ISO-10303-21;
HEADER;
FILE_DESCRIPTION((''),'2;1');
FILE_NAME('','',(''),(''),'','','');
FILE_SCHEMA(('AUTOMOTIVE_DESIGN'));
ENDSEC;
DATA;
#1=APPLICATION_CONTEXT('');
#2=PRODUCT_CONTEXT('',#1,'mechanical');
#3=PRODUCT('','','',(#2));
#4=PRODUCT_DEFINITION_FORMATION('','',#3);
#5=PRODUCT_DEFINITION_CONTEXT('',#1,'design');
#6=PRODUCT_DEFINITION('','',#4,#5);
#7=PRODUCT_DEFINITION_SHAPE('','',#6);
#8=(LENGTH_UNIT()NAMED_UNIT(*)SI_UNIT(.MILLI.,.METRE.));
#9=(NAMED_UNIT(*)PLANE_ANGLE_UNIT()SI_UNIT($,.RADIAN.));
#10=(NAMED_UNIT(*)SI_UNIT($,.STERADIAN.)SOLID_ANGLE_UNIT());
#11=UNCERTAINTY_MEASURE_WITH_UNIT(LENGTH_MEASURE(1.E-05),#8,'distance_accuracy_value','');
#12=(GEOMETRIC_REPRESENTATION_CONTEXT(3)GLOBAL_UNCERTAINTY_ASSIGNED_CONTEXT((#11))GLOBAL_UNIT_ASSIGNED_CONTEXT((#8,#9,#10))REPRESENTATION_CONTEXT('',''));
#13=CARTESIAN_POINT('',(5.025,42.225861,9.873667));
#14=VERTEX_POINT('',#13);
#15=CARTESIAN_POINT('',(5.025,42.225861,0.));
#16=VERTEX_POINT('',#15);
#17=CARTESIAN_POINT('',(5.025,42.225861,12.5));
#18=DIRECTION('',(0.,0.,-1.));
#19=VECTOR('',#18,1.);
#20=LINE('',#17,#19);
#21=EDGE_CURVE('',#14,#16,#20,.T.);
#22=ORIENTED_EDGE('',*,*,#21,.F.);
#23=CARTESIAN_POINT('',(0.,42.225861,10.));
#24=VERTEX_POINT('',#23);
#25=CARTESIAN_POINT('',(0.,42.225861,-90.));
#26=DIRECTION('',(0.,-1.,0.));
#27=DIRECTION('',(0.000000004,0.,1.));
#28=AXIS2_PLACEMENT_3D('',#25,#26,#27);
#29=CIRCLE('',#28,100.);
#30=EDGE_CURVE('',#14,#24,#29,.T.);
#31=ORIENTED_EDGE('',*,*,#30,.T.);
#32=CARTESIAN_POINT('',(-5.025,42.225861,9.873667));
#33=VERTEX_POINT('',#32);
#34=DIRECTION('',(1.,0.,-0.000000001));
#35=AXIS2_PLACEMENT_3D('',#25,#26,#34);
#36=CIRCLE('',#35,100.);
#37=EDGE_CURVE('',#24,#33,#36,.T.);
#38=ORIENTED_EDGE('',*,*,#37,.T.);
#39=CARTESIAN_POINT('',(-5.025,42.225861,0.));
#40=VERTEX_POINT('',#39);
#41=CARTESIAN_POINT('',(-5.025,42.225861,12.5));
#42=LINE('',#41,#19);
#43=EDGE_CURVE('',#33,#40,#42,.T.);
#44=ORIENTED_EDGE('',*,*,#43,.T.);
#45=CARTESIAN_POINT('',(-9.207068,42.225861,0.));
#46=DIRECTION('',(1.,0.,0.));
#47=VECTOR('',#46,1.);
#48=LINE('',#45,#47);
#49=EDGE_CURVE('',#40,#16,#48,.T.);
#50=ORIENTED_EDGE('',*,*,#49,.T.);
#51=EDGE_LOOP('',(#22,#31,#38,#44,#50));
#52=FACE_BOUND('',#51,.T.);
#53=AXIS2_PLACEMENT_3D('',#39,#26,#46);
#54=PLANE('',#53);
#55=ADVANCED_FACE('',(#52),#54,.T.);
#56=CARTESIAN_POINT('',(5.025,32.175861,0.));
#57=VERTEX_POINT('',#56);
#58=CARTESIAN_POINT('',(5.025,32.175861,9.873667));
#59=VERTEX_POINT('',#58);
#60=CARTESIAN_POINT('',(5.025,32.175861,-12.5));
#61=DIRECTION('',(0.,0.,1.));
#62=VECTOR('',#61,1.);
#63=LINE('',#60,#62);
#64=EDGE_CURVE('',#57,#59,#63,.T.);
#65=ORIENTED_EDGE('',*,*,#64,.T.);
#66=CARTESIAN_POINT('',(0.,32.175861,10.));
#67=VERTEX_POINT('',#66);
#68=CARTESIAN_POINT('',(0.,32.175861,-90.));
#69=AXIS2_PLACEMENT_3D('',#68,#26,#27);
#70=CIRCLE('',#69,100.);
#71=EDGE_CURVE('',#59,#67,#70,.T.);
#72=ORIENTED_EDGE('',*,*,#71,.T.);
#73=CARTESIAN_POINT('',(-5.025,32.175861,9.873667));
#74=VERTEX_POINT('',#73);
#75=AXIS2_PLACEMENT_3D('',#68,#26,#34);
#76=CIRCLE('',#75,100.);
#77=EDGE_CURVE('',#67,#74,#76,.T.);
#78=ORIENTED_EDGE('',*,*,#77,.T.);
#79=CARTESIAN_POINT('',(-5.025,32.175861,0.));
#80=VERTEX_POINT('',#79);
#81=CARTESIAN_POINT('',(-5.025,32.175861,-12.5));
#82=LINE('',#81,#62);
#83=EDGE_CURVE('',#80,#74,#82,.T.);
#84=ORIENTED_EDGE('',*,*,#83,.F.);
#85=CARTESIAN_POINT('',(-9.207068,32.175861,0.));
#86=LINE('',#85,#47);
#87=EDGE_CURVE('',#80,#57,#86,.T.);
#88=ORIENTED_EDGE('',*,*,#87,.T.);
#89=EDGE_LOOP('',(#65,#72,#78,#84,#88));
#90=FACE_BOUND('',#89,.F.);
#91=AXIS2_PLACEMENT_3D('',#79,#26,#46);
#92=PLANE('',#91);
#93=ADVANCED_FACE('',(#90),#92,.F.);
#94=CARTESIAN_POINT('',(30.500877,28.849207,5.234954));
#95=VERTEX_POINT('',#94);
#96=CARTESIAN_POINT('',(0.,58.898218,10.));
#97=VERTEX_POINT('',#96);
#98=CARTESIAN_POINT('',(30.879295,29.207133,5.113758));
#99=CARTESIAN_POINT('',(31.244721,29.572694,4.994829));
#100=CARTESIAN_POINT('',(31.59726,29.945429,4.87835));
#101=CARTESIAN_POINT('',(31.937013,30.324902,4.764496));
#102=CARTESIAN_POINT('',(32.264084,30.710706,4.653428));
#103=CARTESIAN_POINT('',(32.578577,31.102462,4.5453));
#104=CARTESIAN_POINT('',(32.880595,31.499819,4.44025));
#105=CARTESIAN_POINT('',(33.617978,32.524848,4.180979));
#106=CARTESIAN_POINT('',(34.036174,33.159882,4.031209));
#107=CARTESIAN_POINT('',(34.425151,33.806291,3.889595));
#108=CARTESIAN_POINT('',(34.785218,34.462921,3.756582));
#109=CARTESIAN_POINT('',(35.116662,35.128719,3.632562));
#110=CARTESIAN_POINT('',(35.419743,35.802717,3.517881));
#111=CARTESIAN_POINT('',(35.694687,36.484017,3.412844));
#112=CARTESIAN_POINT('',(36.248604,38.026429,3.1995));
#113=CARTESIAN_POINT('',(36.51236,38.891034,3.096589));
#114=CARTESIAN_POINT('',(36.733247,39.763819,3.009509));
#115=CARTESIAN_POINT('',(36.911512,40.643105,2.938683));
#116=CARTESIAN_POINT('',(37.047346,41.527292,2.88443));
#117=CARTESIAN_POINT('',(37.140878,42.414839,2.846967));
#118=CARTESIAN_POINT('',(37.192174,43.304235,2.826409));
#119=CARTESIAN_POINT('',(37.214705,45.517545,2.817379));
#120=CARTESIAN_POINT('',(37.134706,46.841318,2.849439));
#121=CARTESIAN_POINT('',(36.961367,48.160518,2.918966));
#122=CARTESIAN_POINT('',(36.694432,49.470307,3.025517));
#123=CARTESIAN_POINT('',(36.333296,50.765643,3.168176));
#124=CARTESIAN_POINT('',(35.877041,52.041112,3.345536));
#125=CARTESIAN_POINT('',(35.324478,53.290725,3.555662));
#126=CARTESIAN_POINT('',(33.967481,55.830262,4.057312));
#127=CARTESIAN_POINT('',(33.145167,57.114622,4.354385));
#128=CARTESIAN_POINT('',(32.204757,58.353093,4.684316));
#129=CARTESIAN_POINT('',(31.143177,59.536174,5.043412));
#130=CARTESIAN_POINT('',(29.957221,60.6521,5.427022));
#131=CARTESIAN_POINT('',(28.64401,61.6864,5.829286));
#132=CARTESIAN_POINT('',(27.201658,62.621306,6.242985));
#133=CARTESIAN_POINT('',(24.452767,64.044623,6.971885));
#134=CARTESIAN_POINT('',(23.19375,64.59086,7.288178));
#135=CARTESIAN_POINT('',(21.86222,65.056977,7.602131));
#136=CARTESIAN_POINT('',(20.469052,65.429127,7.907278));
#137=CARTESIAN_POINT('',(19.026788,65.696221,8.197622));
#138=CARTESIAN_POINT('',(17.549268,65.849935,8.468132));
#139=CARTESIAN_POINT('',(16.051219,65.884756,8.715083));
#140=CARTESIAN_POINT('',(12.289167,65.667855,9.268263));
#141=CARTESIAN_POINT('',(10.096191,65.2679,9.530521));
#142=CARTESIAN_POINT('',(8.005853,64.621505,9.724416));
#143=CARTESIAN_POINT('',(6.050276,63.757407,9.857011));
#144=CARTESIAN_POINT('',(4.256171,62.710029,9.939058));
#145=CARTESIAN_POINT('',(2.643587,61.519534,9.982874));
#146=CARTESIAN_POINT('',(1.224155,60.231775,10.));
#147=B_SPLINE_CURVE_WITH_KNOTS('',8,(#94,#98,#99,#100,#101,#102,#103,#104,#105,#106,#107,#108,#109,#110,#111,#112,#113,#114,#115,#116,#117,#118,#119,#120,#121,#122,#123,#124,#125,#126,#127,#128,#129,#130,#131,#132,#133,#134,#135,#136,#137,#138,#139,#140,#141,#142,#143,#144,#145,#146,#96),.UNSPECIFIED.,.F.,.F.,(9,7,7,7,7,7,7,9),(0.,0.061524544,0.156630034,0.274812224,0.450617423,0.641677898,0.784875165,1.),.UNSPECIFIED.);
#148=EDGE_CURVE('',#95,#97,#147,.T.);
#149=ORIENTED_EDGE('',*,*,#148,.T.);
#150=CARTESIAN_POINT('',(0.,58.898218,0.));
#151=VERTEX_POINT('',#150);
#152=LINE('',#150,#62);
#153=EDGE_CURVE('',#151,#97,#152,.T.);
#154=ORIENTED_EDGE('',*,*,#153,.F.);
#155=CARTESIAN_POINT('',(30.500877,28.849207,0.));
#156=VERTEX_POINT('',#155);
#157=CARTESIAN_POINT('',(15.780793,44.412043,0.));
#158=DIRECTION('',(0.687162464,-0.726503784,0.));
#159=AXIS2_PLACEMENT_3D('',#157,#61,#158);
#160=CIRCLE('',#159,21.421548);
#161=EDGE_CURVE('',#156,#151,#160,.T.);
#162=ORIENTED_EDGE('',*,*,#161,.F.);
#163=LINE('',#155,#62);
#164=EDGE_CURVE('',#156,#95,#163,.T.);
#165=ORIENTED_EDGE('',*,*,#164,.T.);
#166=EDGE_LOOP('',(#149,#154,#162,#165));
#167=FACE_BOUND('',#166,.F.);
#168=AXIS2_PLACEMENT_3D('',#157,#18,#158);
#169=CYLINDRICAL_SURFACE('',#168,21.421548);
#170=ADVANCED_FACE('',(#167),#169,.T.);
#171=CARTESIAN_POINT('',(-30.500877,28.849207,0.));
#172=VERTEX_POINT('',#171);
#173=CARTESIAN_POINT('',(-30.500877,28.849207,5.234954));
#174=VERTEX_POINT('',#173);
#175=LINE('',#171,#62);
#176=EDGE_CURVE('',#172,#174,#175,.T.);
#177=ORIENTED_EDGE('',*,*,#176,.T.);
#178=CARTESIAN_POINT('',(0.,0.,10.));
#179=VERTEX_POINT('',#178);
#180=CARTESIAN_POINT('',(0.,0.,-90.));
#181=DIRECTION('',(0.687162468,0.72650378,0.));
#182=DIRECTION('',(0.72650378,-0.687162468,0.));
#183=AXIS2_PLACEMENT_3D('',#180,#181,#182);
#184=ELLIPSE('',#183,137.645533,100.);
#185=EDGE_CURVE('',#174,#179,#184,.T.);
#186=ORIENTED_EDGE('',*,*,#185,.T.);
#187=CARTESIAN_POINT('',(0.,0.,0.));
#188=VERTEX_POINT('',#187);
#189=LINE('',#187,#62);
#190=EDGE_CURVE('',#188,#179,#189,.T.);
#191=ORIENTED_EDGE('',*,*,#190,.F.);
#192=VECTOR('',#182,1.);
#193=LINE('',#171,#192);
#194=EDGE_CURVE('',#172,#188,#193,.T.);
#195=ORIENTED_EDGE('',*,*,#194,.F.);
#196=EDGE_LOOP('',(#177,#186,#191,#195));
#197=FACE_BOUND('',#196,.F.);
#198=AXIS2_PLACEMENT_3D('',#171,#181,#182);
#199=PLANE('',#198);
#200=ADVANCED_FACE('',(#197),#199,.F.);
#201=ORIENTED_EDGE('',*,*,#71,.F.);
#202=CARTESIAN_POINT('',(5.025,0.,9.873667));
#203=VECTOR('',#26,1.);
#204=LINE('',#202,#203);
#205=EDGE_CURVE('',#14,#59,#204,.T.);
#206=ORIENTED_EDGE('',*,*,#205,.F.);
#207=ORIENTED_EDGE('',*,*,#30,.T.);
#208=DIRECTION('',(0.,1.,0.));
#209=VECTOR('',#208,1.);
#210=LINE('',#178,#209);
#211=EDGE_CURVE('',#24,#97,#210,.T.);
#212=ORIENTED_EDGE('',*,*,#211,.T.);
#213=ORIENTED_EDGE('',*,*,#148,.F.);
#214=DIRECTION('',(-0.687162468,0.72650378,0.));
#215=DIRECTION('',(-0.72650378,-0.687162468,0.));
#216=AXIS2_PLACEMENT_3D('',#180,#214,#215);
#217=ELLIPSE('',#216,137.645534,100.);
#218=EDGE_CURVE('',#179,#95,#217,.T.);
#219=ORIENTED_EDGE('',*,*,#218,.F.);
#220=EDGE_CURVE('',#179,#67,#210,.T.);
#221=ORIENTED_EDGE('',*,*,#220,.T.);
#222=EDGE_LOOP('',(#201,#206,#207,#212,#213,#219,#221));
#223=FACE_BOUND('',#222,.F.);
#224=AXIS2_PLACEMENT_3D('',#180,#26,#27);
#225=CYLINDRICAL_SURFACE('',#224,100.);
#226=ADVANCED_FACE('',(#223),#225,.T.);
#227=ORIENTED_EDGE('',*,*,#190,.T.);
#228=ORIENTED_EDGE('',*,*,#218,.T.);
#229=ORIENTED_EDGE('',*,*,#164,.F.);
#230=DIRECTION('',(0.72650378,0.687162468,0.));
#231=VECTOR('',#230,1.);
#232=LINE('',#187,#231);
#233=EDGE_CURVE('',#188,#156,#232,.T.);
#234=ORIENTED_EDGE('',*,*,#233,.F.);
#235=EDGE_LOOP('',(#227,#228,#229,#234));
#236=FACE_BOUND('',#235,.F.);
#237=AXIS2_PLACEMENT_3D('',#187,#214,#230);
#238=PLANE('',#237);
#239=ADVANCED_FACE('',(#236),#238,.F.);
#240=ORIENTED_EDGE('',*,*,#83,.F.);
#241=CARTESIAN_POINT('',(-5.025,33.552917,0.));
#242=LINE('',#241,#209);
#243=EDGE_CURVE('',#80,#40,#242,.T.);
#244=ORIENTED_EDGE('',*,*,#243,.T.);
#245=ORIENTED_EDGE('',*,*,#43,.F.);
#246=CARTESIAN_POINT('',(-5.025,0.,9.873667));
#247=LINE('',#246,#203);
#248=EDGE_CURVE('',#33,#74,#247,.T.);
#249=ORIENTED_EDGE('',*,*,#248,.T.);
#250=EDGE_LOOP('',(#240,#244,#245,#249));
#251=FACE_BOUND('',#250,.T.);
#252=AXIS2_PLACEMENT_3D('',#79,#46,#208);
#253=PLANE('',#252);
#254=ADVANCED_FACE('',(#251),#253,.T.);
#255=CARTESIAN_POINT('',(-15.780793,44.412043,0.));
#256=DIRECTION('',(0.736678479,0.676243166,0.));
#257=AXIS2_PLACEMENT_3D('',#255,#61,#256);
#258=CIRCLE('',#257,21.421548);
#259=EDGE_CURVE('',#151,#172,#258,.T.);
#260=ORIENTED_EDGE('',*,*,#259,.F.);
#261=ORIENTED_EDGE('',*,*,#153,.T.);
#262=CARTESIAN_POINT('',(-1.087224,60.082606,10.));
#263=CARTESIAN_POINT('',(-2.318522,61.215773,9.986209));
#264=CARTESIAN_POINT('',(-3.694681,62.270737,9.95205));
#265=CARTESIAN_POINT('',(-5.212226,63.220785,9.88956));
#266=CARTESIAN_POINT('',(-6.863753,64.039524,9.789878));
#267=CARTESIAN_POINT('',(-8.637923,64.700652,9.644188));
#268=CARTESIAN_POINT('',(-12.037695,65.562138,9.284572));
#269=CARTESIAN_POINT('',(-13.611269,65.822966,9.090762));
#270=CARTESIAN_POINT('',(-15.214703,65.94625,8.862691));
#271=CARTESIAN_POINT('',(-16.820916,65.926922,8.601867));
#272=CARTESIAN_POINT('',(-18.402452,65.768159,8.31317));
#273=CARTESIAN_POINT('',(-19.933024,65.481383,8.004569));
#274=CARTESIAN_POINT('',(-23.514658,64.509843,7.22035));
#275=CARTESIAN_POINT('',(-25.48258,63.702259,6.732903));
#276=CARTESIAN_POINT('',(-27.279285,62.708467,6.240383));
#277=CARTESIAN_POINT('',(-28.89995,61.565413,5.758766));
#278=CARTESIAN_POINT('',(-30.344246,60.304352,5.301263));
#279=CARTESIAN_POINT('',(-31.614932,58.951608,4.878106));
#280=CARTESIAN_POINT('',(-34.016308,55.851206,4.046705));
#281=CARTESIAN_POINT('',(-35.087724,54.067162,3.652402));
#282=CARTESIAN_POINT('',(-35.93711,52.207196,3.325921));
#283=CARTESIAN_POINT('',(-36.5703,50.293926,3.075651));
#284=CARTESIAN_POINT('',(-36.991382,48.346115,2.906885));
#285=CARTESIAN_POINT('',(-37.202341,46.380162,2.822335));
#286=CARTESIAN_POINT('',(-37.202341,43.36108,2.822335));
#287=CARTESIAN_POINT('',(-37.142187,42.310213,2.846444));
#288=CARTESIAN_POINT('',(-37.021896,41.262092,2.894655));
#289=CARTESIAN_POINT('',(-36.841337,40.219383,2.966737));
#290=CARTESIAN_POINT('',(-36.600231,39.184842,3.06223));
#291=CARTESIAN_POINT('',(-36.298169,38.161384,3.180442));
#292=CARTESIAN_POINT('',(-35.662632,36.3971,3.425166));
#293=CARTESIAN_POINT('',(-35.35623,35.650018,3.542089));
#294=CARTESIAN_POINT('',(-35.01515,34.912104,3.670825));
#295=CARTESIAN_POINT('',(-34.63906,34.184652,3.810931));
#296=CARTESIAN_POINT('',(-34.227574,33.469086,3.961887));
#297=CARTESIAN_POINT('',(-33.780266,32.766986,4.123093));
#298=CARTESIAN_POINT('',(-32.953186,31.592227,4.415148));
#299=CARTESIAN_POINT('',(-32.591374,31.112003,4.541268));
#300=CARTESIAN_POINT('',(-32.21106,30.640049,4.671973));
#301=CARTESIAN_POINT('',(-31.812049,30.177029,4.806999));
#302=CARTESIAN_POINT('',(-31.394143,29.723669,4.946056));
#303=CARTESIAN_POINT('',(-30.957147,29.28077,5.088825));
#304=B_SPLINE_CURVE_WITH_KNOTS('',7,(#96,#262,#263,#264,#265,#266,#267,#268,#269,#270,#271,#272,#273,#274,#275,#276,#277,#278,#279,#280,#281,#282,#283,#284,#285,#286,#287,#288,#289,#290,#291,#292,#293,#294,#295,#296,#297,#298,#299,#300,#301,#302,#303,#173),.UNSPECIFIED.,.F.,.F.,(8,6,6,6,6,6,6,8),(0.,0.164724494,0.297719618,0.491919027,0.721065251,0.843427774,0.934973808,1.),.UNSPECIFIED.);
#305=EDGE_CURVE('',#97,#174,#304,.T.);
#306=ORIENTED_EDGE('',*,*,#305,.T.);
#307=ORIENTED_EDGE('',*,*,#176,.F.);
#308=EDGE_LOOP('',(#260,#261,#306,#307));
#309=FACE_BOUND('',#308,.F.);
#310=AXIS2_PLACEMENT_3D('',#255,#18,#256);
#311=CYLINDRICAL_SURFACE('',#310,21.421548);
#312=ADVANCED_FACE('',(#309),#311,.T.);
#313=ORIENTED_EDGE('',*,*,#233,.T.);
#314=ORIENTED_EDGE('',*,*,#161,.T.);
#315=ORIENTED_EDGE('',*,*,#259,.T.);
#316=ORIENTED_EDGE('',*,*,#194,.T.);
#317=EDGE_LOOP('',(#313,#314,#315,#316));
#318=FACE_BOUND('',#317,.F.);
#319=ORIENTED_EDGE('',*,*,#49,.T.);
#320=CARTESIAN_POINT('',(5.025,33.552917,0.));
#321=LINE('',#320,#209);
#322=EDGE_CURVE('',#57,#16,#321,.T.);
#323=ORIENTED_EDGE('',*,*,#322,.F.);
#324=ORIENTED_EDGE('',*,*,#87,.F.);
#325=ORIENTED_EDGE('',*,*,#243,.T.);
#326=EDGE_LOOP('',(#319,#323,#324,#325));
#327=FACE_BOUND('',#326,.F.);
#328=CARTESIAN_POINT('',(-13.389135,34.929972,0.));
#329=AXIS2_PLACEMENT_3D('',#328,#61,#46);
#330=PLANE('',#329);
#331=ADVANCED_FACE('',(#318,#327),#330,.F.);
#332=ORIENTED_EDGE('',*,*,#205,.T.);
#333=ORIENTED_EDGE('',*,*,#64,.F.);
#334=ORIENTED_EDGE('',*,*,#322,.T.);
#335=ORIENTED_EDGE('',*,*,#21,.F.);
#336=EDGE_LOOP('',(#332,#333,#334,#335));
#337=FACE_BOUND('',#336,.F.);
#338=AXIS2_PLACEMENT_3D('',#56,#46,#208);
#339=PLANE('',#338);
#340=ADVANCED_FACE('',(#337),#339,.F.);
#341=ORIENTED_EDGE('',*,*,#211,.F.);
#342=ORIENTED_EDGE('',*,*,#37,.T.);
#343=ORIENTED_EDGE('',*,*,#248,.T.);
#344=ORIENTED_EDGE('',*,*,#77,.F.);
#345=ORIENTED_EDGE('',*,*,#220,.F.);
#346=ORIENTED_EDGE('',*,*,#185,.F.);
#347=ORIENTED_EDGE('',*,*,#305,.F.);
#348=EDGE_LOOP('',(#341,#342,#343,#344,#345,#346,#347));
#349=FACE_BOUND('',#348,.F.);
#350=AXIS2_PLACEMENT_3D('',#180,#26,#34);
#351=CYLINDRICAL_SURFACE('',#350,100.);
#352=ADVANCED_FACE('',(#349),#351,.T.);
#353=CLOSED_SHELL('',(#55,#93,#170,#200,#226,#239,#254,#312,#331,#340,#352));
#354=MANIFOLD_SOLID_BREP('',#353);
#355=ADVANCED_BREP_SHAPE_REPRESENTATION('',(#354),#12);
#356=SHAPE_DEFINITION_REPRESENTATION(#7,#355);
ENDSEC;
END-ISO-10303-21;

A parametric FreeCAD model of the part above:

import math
import FreeCAD as App
import Part
import Sketcher
from FreeCAD import Vector
Q = App.Units.Quantity

doc = App.newDocument("Part")
body = doc.addObject("PartDesign::Body", "Body")

# Sketch on XY plane
sketch1 = body.newObject("Sketcher::SketchObject", "Sketch")
sketch1.AttachmentSupport = (doc.getObject("XY_Plane"), [""])
sketch1.MapMode = "FlatFace"
sketch1.addGeometry([
    Part.LineSegment(Vector(-30.500877, 28.849207, 0), Vector(0, 0, 0)),
    Part.LineSegment(Vector(0, 0, 0), Vector(30.500877, 28.849207, 0)),
    Part.ArcOfCircle(Part.Circle(Vector(15.780793, 44.412043, 0), Vector(0, 0, 1), 21.421548), math.radians(-46.594089), math.radians(137.449236)),
    Part.ArcOfCircle(Part.Circle(Vector(-15.780793, 44.412043, 0), Vector(0, 0, 1), 21.421548), math.radians(42.550764), math.radians(226.594089)),
], False)
sketch1.addConstraint([
    Sketcher.Constraint("Coincident", 0, 2, 1, 1),
    Sketcher.Constraint("Tangent", 1, 2, 2, 1),
    Sketcher.Constraint("Coincident", 2, 2, 3, 1),
    Sketcher.Constraint("Tangent", 3, 2, 0, 1),
    Sketcher.Constraint("Coincident", 0, 2, -1, 1),
    Sketcher.Constraint("Equal", 2, 3),
    Sketcher.Constraint("Symmetric", 2, 3, 3, 3, -2),
    Sketcher.Constraint("Radius", 2, Q("21.421548 mm")),
    Sketcher.Constraint("DistanceY", -1, 1, 2, 2, Q("58.898218 mm")),
    Sketcher.Constraint("DistanceX", 3, 3, 1, 2, Q("46.28167 mm")),
])
pad1 = body.newObject("PartDesign::Pad", "Pad")
pad1.Profile = sketch1
pad1.Length = 10

# Sketch on XZ plane
sketch2 = body.newObject("Sketcher::SketchObject", "Sketch001")
sketch2.AttachmentSupport = (doc.getObject("XZ_Plane"), [""])
sketch2.MapMode = "FlatFace"
sketch2.addGeometry([
    Part.Circle(Vector(0, -90, 0), Vector(0, 0, 1), 135.50038),
    Part.ArcOfCircle(Part.Circle(Vector(0, -90, 0), Vector(0, 0, 1), 100), math.radians(90), math.radians(360)),
    Part.ArcOfCircle(Part.Circle(Vector(0, -90, 0), Vector(0, 0, 1), 100), math.radians(0), math.radians(90)),
], False)
sketch2.addConstraint([
    Sketcher.Constraint("Tangent", 1, 1, 2, 2),
    Sketcher.Constraint("Coincident", 2, 1, 1, 2),
    Sketcher.Constraint("Coincident", 1, 3, 0, 3),
    Sketcher.Constraint("PointOnObject", 0, 3, -2),
    Sketcher.Constraint("PointOnObject", 1, 1, -2),
    Sketcher.Constraint("Horizontal", 1, 3, 2, 1),
    Sketcher.Constraint("Radius", 1, Q("100 mm")),
    Sketcher.Constraint("DistanceY", 0, 3, -1, 1, Q("90 mm")),
    Sketcher.Constraint("Diameter", 0, Q("271.00076 mm")),
])
pocket1 = body.newObject("PartDesign::Pocket", "Pocket")
pocket1.Profile = sketch2
pocket1.Length = 134

# Sketch on XY plane
sketch3 = body.newObject("Sketcher::SketchObject", "Sketch002")
sketch3.AttachmentSupport = (doc.getObject("XY_Plane"), [""])
sketch3.MapMode = "FlatFace"
sketch3.addGeometry([
    Part.LineSegment(Vector(-5.025, 42.225861, 0), Vector(-5.025, 32.175861, 0)),
    Part.LineSegment(Vector(-5.025, 32.175861, 0), Vector(5.025, 32.175861, 0)),
    Part.LineSegment(Vector(5.025, 32.175861, 0), Vector(5.025, 42.225861, 0)),
    Part.LineSegment(Vector(5.025, 42.225861, 0), Vector(-5.025, 42.225861, 0)),
], False)
sketch3.addConstraint([
    Sketcher.Constraint("Coincident", 0, 2, 1, 1),
    Sketcher.Constraint("Coincident", 1, 2, 2, 1),
    Sketcher.Constraint("Coincident", 2, 2, 3, 1),
    Sketcher.Constraint("Coincident", 3, 2, 0, 1),
    Sketcher.Constraint("Vertical", 0),
    Sketcher.Constraint("Horizontal", 1),
    Sketcher.Constraint("Vertical", 2),
    Sketcher.Constraint("Horizontal", 3),
    Sketcher.Constraint("Equal", 3, 0),
    Sketcher.Constraint("DistanceX", 1, 1, 1, 2, Q("10.05 mm")),
    Sketcher.Constraint("DistanceX", 0, 2, -1, 1, Q("5.025 mm")),
    Sketcher.Constraint("DistanceY", -1, 1, 0, 2, Q("32.175861 mm")),
])
pocket2 = body.newObject("PartDesign::Pocket", "Pocket001")
pocket2.Profile = sketch3
pocket2.Length = 25
pocket2.Midplane = True

doc.recompute()
